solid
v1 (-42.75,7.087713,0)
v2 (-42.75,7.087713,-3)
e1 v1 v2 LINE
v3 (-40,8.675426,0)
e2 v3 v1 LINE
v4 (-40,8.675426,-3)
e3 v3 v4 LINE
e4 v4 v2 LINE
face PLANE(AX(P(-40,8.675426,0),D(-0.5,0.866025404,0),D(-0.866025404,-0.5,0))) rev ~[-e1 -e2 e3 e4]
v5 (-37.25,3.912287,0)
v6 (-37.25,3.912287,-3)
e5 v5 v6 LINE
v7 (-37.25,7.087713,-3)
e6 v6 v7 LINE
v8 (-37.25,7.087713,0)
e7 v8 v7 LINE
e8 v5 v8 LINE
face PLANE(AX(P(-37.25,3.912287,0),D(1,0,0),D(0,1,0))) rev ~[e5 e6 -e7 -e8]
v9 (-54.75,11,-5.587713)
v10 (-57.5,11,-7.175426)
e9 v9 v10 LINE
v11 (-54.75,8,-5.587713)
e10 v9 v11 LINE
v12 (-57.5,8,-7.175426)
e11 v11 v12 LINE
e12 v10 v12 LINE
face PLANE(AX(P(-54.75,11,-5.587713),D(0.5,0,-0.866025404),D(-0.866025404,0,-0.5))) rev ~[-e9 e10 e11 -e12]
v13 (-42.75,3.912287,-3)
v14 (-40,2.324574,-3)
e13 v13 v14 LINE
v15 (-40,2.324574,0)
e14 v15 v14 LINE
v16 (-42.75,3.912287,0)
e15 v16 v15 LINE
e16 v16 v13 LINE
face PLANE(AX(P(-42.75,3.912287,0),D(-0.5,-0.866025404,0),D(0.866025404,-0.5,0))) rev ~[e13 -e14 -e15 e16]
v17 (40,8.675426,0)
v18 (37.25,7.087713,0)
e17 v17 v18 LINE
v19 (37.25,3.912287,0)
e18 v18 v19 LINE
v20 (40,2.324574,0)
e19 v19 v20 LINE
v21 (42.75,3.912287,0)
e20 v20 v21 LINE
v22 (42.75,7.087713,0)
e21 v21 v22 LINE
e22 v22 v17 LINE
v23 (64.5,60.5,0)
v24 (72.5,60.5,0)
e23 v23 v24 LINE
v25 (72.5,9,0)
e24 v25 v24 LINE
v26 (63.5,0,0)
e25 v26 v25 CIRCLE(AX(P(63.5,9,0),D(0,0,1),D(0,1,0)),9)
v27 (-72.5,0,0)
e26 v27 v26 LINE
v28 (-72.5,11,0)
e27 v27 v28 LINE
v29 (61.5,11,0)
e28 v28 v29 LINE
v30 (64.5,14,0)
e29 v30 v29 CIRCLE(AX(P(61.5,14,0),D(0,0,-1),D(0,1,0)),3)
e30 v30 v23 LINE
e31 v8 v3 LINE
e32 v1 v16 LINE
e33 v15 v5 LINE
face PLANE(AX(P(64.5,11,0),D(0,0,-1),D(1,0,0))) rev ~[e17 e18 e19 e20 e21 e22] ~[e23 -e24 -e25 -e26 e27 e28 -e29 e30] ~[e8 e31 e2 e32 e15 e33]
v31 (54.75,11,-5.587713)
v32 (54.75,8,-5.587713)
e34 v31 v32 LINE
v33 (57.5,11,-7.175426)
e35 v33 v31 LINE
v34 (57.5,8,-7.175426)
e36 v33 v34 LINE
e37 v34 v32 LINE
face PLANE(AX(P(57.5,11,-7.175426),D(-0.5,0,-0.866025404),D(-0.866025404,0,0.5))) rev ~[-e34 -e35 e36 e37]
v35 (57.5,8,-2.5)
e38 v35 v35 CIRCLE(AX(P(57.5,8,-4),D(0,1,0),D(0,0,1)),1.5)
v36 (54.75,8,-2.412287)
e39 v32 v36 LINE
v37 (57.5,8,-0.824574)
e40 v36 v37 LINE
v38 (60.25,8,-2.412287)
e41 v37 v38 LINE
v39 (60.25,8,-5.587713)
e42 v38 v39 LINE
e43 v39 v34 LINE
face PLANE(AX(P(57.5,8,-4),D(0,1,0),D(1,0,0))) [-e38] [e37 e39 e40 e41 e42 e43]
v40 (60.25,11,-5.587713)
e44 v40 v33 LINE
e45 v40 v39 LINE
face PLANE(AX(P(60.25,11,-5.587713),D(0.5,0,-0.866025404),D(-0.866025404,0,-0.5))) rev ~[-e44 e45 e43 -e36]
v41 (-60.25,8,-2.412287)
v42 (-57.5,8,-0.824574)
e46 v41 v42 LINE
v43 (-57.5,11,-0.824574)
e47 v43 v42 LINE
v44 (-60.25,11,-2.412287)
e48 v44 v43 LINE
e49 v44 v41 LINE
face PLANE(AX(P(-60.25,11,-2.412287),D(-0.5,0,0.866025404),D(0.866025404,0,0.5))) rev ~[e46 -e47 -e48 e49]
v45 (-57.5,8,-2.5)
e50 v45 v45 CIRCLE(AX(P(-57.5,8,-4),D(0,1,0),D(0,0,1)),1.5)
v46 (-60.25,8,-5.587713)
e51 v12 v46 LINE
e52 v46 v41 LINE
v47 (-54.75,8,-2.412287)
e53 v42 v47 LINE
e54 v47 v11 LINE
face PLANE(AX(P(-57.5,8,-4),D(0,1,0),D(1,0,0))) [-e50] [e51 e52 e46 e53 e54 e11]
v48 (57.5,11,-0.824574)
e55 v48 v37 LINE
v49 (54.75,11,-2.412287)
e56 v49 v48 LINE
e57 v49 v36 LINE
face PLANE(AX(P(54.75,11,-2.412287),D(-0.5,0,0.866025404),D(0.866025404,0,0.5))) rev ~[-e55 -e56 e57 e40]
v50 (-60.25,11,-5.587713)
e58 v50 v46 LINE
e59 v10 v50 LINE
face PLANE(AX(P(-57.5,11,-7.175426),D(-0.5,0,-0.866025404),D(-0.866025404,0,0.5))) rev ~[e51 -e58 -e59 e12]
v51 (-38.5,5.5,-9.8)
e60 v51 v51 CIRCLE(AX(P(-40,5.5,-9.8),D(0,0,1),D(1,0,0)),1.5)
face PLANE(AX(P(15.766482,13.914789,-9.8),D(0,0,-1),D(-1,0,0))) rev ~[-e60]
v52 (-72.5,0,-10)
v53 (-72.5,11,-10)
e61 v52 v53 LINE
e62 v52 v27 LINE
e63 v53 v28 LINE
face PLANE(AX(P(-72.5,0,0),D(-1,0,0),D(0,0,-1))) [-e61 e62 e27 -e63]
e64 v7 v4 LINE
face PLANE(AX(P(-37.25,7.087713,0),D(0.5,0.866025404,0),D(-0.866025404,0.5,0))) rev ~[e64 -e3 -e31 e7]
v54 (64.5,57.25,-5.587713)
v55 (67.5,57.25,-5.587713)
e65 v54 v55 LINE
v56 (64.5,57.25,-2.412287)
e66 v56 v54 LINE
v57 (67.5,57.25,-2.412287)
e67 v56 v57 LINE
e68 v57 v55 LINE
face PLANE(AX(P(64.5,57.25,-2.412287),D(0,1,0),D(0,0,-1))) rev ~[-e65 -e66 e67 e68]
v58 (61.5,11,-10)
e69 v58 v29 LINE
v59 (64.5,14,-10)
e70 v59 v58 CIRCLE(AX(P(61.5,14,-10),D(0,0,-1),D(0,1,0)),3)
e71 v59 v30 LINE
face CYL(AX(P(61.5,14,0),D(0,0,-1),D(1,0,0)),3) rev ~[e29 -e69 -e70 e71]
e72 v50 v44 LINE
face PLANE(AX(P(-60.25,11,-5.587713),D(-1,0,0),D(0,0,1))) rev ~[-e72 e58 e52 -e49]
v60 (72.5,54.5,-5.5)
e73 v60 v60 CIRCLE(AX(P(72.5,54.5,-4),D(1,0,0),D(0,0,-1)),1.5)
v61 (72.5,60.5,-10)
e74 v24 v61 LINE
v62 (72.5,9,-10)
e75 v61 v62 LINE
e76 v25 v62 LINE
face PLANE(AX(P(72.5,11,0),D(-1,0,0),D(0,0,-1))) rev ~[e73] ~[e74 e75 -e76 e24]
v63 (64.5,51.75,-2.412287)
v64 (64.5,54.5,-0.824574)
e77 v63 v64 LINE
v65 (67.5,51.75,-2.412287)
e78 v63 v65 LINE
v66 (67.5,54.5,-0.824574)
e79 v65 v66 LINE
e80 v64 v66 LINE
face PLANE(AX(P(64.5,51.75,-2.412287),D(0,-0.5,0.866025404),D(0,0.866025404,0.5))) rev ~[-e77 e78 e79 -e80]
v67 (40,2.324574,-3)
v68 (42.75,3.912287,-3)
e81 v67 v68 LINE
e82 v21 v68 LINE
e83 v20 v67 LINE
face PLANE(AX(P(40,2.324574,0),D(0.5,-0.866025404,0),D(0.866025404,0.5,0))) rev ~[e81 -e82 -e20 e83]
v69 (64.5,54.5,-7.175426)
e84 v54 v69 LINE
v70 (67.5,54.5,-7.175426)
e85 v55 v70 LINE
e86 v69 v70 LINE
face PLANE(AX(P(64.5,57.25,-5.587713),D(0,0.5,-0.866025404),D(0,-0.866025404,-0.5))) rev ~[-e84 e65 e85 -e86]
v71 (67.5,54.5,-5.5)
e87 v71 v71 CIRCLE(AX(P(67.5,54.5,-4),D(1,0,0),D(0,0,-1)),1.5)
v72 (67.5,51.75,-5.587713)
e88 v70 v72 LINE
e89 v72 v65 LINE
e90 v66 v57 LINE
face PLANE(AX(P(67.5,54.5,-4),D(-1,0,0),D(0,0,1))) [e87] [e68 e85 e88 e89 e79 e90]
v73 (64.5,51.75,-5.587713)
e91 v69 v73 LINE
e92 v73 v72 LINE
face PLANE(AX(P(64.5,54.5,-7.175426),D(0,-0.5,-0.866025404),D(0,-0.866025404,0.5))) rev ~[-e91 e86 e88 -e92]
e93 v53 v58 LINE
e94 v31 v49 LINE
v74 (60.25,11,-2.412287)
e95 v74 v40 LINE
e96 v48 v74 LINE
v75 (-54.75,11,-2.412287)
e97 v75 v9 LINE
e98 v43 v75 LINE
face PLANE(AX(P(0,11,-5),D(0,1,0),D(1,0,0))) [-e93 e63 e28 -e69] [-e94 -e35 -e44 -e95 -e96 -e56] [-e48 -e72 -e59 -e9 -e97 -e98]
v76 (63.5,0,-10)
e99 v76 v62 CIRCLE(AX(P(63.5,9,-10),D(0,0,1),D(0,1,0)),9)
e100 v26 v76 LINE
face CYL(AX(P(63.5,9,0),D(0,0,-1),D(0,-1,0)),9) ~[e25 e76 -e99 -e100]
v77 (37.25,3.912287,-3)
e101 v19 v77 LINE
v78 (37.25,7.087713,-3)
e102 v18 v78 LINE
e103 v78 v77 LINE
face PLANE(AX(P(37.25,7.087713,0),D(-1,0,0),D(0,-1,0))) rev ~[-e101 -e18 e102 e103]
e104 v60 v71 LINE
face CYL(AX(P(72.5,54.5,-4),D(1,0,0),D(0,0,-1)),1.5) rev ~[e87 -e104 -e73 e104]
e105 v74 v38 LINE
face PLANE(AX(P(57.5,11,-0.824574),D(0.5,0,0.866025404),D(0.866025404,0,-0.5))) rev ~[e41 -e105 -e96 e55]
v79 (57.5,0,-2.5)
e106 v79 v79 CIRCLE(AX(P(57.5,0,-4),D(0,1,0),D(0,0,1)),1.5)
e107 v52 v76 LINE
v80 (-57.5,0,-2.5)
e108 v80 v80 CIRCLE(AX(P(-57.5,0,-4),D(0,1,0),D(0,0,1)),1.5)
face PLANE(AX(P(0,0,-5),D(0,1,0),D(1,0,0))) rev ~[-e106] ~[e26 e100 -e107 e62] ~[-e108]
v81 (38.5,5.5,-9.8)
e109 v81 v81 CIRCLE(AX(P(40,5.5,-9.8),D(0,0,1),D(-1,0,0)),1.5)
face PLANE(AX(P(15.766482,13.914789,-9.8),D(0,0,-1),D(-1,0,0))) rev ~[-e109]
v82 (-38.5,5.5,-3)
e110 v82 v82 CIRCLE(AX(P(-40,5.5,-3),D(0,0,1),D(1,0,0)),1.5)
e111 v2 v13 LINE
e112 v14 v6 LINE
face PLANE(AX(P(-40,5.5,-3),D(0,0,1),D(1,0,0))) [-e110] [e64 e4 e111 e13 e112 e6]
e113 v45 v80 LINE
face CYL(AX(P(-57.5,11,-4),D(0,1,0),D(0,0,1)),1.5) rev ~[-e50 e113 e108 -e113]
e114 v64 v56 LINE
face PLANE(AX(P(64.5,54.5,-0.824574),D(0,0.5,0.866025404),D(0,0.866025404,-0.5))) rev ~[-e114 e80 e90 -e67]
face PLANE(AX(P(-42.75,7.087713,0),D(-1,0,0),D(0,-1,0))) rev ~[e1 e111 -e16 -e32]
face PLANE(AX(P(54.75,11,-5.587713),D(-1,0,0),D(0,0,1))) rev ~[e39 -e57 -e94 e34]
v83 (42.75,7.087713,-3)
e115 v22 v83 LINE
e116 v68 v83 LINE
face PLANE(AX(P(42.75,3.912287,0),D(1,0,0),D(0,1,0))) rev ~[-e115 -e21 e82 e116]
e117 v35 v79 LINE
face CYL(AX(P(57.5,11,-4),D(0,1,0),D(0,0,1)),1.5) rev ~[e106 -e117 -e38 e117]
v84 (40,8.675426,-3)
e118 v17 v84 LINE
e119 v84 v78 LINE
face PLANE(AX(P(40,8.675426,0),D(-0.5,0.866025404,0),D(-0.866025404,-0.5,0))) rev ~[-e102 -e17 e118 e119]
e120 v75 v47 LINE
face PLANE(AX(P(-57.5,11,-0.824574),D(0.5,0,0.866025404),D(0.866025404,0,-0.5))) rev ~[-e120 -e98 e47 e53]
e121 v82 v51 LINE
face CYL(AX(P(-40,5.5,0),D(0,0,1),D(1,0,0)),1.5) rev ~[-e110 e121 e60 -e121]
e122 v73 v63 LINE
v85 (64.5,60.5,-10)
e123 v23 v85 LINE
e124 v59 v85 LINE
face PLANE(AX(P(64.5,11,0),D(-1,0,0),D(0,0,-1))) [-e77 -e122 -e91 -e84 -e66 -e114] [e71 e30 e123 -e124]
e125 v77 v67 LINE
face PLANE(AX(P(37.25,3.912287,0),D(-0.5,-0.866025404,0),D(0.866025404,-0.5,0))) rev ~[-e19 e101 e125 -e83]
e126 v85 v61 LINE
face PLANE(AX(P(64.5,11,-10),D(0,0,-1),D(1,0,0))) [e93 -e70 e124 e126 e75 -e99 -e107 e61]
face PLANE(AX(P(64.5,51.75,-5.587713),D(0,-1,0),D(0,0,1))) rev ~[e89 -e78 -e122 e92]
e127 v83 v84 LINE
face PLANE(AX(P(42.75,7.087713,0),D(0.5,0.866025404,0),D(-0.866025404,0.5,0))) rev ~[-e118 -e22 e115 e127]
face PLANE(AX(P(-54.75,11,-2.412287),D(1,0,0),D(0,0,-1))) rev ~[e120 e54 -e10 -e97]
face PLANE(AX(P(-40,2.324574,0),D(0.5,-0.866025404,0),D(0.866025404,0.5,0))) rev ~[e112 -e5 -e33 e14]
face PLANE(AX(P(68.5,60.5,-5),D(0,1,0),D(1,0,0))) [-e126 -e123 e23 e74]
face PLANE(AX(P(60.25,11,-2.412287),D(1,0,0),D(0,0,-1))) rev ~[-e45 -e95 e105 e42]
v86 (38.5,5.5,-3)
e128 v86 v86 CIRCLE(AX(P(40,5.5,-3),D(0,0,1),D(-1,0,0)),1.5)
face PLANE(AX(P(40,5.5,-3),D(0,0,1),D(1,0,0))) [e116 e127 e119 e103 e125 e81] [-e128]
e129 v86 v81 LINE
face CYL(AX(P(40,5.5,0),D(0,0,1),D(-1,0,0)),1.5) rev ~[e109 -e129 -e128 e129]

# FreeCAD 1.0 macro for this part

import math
import FreeCAD as App
import Part
import Sketcher
Q = App.Units.Quantity


def edges_at(feature, points):
    """Names of the edges that pass closest to the given points."""
    edges = feature.Shape.Edges
    near = lambda p: min(range(len(edges)), key=lambda i: edges[i].distToShape(Part.Vertex(*p))[0])
    return sorted({f"Edge{near(p) + 1}" for p in points})


def add_polygon(sketch, points):
    """Adds a closed chain of lines whose ends are joined by coincident constraints."""
    first, n = sketch.GeometryCount, len(points)
    for a, b in zip(points, points[1:] + points[:1]):
        sketch.addGeometry(Part.LineSegment(App.Vector(*a, 0), App.Vector(*b, 0)), False)
    for i in range(n):
        sketch.addConstraint(Sketcher.Constraint("Coincident", first + i, 2, first + (i + 1) % n, 1))

doc = App.newDocument("Part")
body = doc.addObject("PartDesign::Body", "Body")

# Sketch on XZ plane
sketch1 = body.newObject("Sketcher::SketchObject", "Sketch")
sketch1.AttachmentSupport = (doc.getObject("XZ_Plane"), [""])
sketch1.MapMode = "FlatFace"
add_polygon(sketch1, [(-72, -10), (-72, 0), (72, 0), (72, -10)])  # lines 0-3
sketch1.addConstraint(Sketcher.Constraint("Vertical", 0))
sketch1.addConstraint(Sketcher.Constraint("Horizontal", 1))
sketch1.addConstraint(Sketcher.Constraint("Vertical", 2))
sketch1.addConstraint(Sketcher.Constraint("Horizontal", 3))
sketch1.addConstraint(Sketcher.Constraint("Symmetric", 0, 2, 1, 2, -1, 1))
sketch1.addConstraint(Sketcher.Constraint("DistanceX", 1, 1, 1, 2, 145.0))
sketch1.addConstraint(Sketcher.Constraint("DistanceY", 0, 1, 0, 2, 10.0))
pad1 = body.newObject("PartDesign::Pad", "Pad")
pad1.Profile = sketch1
pad1.Length = 11
pad1.Reversed = True

# Sketch on XZ plane
sketch2 = body.newObject("Sketcher::SketchObject", "Sketch001")
sketch2.AttachmentSupport = (doc.getObject("XZ_Plane"), [""])
sketch2.MapMode = "FlatFace"
sketch2.AttachmentOffset = App.Placement(App.Vector(0, 0, -11), App.Rotation())
sketch2.addGeometry(Part.Circle(App.Vector(-57.5, -4, 0), App.Vector(0, 0, 1), 1.5), False)
sketch2.addGeometry(Part.Circle(App.Vector(57.5, -4, 0), App.Vector(0, 0, 1), 1.5), False)
sketch2.addConstraint(Sketcher.Constraint("Equal", 0, 1))
sketch2.addConstraint(Sketcher.Constraint("Symmetric", 0, 3, 1, 3, -2))
sketch2.addConstraint(Sketcher.Constraint("Diameter", 0, 3.0))
sketch2.addConstraint(Sketcher.Constraint("DistanceY", 0, 3, -1, 1, 4.0))
sketch2.addConstraint(Sketcher.Constraint("DistanceX", 0, 3, 1, 3, 115.0))
pocket1 = body.newObject("PartDesign::Pocket", "Pocket")
pocket1.Profile = sketch2
pocket1.Type = "ThroughAll"
pocket1.Reversed = True

# Sketch on XY plane
sketch3 = body.newObject("Sketcher::SketchObject", "Sketch002")
sketch3.AttachmentSupport = (doc.getObject("XY_Plane"), [""])
sketch3.MapMode = "FlatFace"
sketch3.addGeometry(Part.Circle(App.Vector(-40, 5.5, 0), App.Vector(0, 0, 1), 1.5), False)
sketch3.addGeometry(Part.Circle(App.Vector(40, 5.5, 0), App.Vector(0, 0, 1), 1.5), False)
sketch3.addConstraint(Sketcher.Constraint("Equal", 0, 1))
sketch3.addConstraint(Sketcher.Constraint("Symmetric", 0, 3, 1, 3, -2))
sketch3.addConstraint(Sketcher.Constraint("Diameter", 0, 3.0))
sketch3.addConstraint(Sketcher.Constraint("DistanceX", 0, 3, -1, 1, 40.0))
sketch3.addConstraint(Sketcher.Constraint("DistanceY", -1, 1, 0, 3, 5.5))
pocket2 = body.newObject("PartDesign::Pocket", "Pocket001")
pocket2.Profile = sketch3
pocket2.Type = "ThroughAll"

# Sketch on XY plane
sketch4 = body.newObject("Sketcher::SketchObject", "Sketch003")
sketch4.AttachmentSupport = (doc.getObject("XY_Plane"), [""])
sketch4.MapMode = "FlatFace"
add_polygon(sketch4, [(-37.2, 7.1), (-40, 8.7), (-42.8, 7.1), (-42.8, 3.9), (-40, 2.3), (-37.2, 3.9)])  # lines 0-5
add_polygon(sketch4, [(42.8, 7.1), (40, 8.7), (37.2, 7.1), (37.2, 3.9), (40, 2.3), (42.8, 3.9)])  # lines 6-11
sketch4.addConstraint(Sketcher.Constraint("Vertical", 2))
sketch4.addConstraint(Sketcher.Constraint("Vertical", 5))
sketch4.addConstraint(Sketcher.Constraint("Vertical", 8))
sketch4.addConstraint(Sketcher.Constraint("Vertical", 11))
sketch4.addConstraint(Sketcher.Constraint("Symmetric", 0, 2, 6, 2, -2))
sketch4.addConstraint(Sketcher.Constraint("Symmetric", 5, 2, 7, 2, -2))
sketch4.addConstraint(Sketcher.Constraint("Symmetric", 3, 2, 9, 2, -2))
sketch4.addConstraint(Sketcher.Constraint("Symmetric", 2, 2, 10, 2, -2))
sketch4.addConstraint(Sketcher.Constraint("Parallel", 0, 3))
sketch4.addConstraint(Sketcher.Constraint("Parallel", 1, 4))
sketch4.addConstraint(Sketcher.Constraint("Parallel", 3, 6))
sketch4.addConstraint(Sketcher.Constraint("Parallel", 4, 7))
sketch4.addConstraint(Sketcher.Constraint("Parallel", 6, 9))
sketch4.addConstraint(Sketcher.Constraint("Horizontal", 2, 2, 4, 2))
sketch4.addConstraint(Sketcher.Constraint("Horizontal", 1, 2, 5, 2))
sketch4.addConstraint(Sketcher.Constraint("Angle", 0, Q("150 deg")))
sketch4.addConstraint(Sketcher.Constraint("DistanceX", 0, 2, -1, 1, 40.0))
sketch4.addConstraint(Sketcher.Constraint("DistanceX", 2, 2, 4, 2, 5.5))
sketch4.addConstraint(Sketcher.Constraint("DistanceY", 2, 2, 2, 1, 3.175426))
sketch4.addConstraint(Sketcher.Constraint("DistanceY", -1, 1, 0, 2, 8.675426))
pocket3 = body.newObject("PartDesign::Pocket", "Pocket002")
pocket3.Profile = sketch4
pocket3.Length = 3

# Sketch on XZ plane
sketch5 = body.newObject("Sketcher::SketchObject", "Sketch004")
sketch5.AttachmentSupport = (doc.getObject("XZ_Plane"), [""])
sketch5.MapMode = "FlatFace"
sketch5.AttachmentOffset = App.Placement(App.Vector(0, 0, -11), App.Rotation())
add_polygon(sketch5, [(-54.8, -5.6), (-57.5, -7.2), (-60.2, -5.6), (-60.2, -2.4), (-57.5, -0.8), (-54.8, -2.4)])  # lines 0-5
add_polygon(sketch5, [(60.2, -5.6), (57.5, -7.2), (54.8, -5.6), (54.8, -2.4), (57.5, -0.8), (60.2, -2.4)])  # lines 6-11
sketch5.addConstraint(Sketcher.Constraint("Vertical", 2))
sketch5.addConstraint(Sketcher.Constraint("Vertical", 5))
sketch5.addConstraint(Sketcher.Constraint("Vertical", 8))
sketch5.addConstraint(Sketcher.Constraint("Vertical", 11))
sketch5.addConstraint(Sketcher.Constraint("Symmetric", 0, 2, 6, 2, -2))
sketch5.addConstraint(Sketcher.Constraint("Symmetric", 5, 2, 7, 2, -2))
sketch5.addConstraint(Sketcher.Constraint("Symmetric", 3, 2, 9, 2, -2))
sketch5.addConstraint(Sketcher.Constraint("Symmetric", 2, 2, 10, 2, -2))
sketch5.addConstraint(Sketcher.Constraint("Parallel", 0, 3))
sketch5.addConstraint(Sketcher.Constraint("Parallel", 1, 4))
sketch5.addConstraint(Sketcher.Constraint("Parallel", 3, 6))
sketch5.addConstraint(Sketcher.Constraint("Parallel", 4, 7))
sketch5.addConstraint(Sketcher.Constraint("Parallel", 6, 9))
sketch5.addConstraint(Sketcher.Constraint("Horizontal", 2, 2, 4, 2))
sketch5.addConstraint(Sketcher.Constraint("Horizontal", 1, 2, 5, 2))
sketch5.addConstraint(Sketcher.Constraint("Angle", 0, Q("-150 deg")))
sketch5.addConstraint(Sketcher.Constraint("DistanceX", 0, 2, 6, 2, 115.0))
sketch5.addConstraint(Sketcher.Constraint("DistanceX", 2, 2, 4, 2, 5.5))
sketch5.addConstraint(Sketcher.Constraint("DistanceY", 2, 1, 2, 2, 3.175426))
sketch5.addConstraint(Sketcher.Constraint("DistanceY", 0, 2, -1, 1, 7.175426))
pocket4 = body.newObject("PartDesign::Pocket", "Pocket003")
pocket4.Profile = sketch5
pocket4.Length = 3
pocket4.Reversed = True
doc.recompute()

fillet = body.newObject("PartDesign::Fillet", "Fillet")
fillet.Base = (pocket4, edges_at(pocket4, [(72.5, 0, -5)]))
fillet.Radius = 9

# Sketch on XZ plane
sketch6 = body.newObject("Sketcher::SketchObject", "Sketch005")
sketch6.AttachmentSupport = (doc.getObject("XZ_Plane"), [""])
sketch6.MapMode = "FlatFace"
sketch6.AttachmentOffset = App.Placement(App.Vector(0, 0, -11), App.Rotation())
add_polygon(sketch6, [(64, -10), (64, 0), (72, 0), (72, -10)])  # lines 0-3
sketch6.addConstraint(Sketcher.Constraint("Vertical", 0))
sketch6.addConstraint(Sketcher.Constraint("Horizontal", 1))
sketch6.addConstraint(Sketcher.Constraint("Vertical", 2))
sketch6.addConstraint(Sketcher.Constraint("Horizontal", 3))
sketch6.addConstraint(Sketcher.Constraint("PointOnObject", 0, 2, -1))
sketch6.addConstraint(Sketcher.Constraint("DistanceX", 1, 1, 1, 2, 8.0))
sketch6.addConstraint(Sketcher.Constraint("DistanceY", 0, 1, 0, 2, 10.0))
sketch6.addConstraint(Sketcher.Constraint("DistanceX", -1, 1, 0, 2, 64.5))
pad2 = body.newObject("PartDesign::Pad", "Pad001")
pad2.Profile = sketch6
pad2.Length = 49.5
pad2.Reversed = True
doc.recompute()

fillet2 = body.newObject("PartDesign::Fillet", "Fillet001")
fillet2.Base = (pad2, edges_at(pad2, [(64.5, 11, -5)]))
fillet2.Radius = 3

# Sketch on YZ plane
sketch7 = body.newObject("Sketcher::SketchObject", "Sketch006")
sketch7.AttachmentSupport = (doc.getObject("YZ_Plane"), [""])
sketch7.MapMode = "FlatFace"
sketch7.AttachmentOffset = App.Placement(App.Vector(0, 0, 72.5), App.Rotation())
sketch7.addGeometry(Part.Circle(App.Vector(54.5, -4, 0), App.Vector(0, 0, 1), 1.5), False)
sketch7.addConstraint(Sketcher.Constraint("Diameter", 0, 3.0))
sketch7.addConstraint(Sketcher.Constraint("DistanceY", 0, 3, -1, 1, 4.0))
sketch7.addConstraint(Sketcher.Constraint("DistanceX", -1, 1, 0, 3, 54.5))
pocket5 = body.newObject("PartDesign::Pocket", "Pocket004")
pocket5.Profile = sketch7
pocket5.Type = "ThroughAll"

# Sketch on YZ plane
sketch8 = body.newObject("Sketcher::SketchObject", "Sketch007")
sketch8.AttachmentSupport = (doc.getObject("YZ_Plane"), [""])
sketch8.MapMode = "FlatFace"
sketch8.AttachmentOffset = App.Placement(App.Vector(0, 0, 64.5), App.Rotation())
add_polygon(sketch8, [(54.5, -0.8), (57.2, -2.4), (57.2, -5.6), (54.5, -7.2), (51.8, -5.6), (51.8, -2.4)])  # lines 0-5
sketch8.addConstraint(Sketcher.Constraint("Vertical", 1))
sketch8.addConstraint(Sketcher.Constraint("Vertical", 4))
sketch8.addConstraint(Sketcher.Constraint("Parallel", 0, 3))
sketch8.addConstraint(Sketcher.Constraint("Parallel", 2, 5))
sketch8.addConstraint(Sketcher.Constraint("Horizontal", 1, 2, 3, 2))
sketch8.addConstraint(Sketcher.Constraint("Horizontal", 0, 2, 4, 2))
sketch8.addConstraint(Sketcher.Constraint("Vertical", 2, 2, 5, 2))
sketch8.addConstraint(Sketcher.Constraint("Angle", 0, Q("-30 deg")))
sketch8.addConstraint(Sketcher.Constraint("DistanceX", -1, 1, 2, 2, 54.5))
sketch8.addConstraint(Sketcher.Constraint("DistanceX", 3, 2, 1, 2, 5.5))
sketch8.addConstraint(Sketcher.Constraint("DistanceY", 1, 2, 1, 1, 3.175426))
sketch8.addConstraint(Sketcher.Constraint("DistanceY", 0, 2, -1, 1, 2.412287))
pocket6 = body.newObject("PartDesign::Pocket", "Pocket005")
pocket6.Profile = sketch8
pocket6.Length = 3
pocket6.Reversed = True

# Sketch on XY plane
sketch9 = body.newObject("Sketcher::SketchObject", "Sketch008")
sketch9.AttachmentSupport = (doc.getObject("XY_Plane"), [""])
sketch9.MapMode = "FlatFace"
sketch9.AttachmentOffset = App.Placement(App.Vector(0, 0, -9.8), App.Rotation())
sketch9.addGeometry(Part.LineSegment(App.Vector(72.5, 60.5, 0), App.Vector(72.5, 9, 0)), False)
sketch9.addGeometry(Part.ArcOfCircle(Part.Circle(App.Vector(63.5, 9, 0), App.Vector(0, 0, 1), 9), math.radians(-90), math.radians(0)), False)
sketch9.addGeometry(Part.LineSegment(App.Vector(63.5, 0, 0), App.Vector(-72.5, 0, 0)), False)
sketch9.addGeometry(Part.LineSegment(App.Vector(-72.5, 0, 0), App.Vector(-72.5, 11, 0)), False)
sketch9.addGeometry(Part.LineSegment(App.Vector(-72.5, 11, 0), App.Vector(61.5, 11, 0)), False)
sketch9.addGeometry(Part.ArcOfCircle(Part.Circle(App.Vector(61.5, 14, 0), App.Vector(0, 0, 1), 3), math.radians(-90), math.radians(0)), False)
sketch9.addGeometry(Part.LineSegment(App.Vector(64.5, 14, 0), App.Vector(64.5, 60.5, 0)), False)
sketch9.addGeometry(Part.LineSegment(App.Vector(64.5, 60.5, 0), App.Vector(72.5, 60.5, 0)), False)
sketch9.addConstraint(Sketcher.Constraint("Tangent", 0, 2, 1, 2))
sketch9.addConstraint(Sketcher.Constraint("Tangent", 1, 1, 2, 1))
sketch9.addConstraint(Sketcher.Constraint("Coincident", 2, 2, 3, 1))
sketch9.addConstraint(Sketcher.Constraint("Coincident", 3, 2, 4, 1))
sketch9.addConstraint(Sketcher.Constraint("Tangent", 4, 2, 5, 1))
sketch9.addConstraint(Sketcher.Constraint("Tangent", 5, 2, 6, 1))
sketch9.addConstraint(Sketcher.Constraint("Coincident", 6, 2, 7, 1))
sketch9.addConstraint(Sketcher.Constraint("Coincident", 7, 2, 0, 1))
sketch9.addConstraint(Sketcher.Constraint("Vertical", 0))
sketch9.addConstraint(Sketcher.Constraint("Horizontal", 2))
sketch9.addConstraint(Sketcher.Constraint("Vertical", 3))
sketch9.addConstraint(Sketcher.Constraint("Horizontal", 4))
sketch9.addConstraint(Sketcher.Constraint("Vertical", 6))
sketch9.addConstraint(Sketcher.Constraint("Horizontal", 7))
sketch9.addConstraint(Sketcher.Constraint("PointOnObject", 1, 1, -1))
sketch9.addConstraint(Sketcher.Constraint("Radius", 1, 9.0))
sketch9.addConstraint(Sketcher.Constraint("Radius", 5, 3.0))
sketch9.addConstraint(Sketcher.Constraint("DistanceX", 2, 2, 2, 1, 136.0))
sketch9.addConstraint(Sketcher.Constraint("DistanceX", 4, 1, 4, 2, 134.0))
sketch9.addConstraint(Sketcher.Constraint("DistanceY", 3, 1, 3, 2, 11.0))
sketch9.addConstraint(Sketcher.Constraint("DistanceY", 0, 2, 0, 1, 51.5))
sketch9.addConstraint(Sketcher.Constraint("DistanceX", -1, 1, 1, 3, 63.5))
pad3 = body.newObject("PartDesign::Pad", "Pad002")
pad3.Profile = sketch9
pad3.Length = 0.2
pad3.Reversed = True

doc.recompute()
